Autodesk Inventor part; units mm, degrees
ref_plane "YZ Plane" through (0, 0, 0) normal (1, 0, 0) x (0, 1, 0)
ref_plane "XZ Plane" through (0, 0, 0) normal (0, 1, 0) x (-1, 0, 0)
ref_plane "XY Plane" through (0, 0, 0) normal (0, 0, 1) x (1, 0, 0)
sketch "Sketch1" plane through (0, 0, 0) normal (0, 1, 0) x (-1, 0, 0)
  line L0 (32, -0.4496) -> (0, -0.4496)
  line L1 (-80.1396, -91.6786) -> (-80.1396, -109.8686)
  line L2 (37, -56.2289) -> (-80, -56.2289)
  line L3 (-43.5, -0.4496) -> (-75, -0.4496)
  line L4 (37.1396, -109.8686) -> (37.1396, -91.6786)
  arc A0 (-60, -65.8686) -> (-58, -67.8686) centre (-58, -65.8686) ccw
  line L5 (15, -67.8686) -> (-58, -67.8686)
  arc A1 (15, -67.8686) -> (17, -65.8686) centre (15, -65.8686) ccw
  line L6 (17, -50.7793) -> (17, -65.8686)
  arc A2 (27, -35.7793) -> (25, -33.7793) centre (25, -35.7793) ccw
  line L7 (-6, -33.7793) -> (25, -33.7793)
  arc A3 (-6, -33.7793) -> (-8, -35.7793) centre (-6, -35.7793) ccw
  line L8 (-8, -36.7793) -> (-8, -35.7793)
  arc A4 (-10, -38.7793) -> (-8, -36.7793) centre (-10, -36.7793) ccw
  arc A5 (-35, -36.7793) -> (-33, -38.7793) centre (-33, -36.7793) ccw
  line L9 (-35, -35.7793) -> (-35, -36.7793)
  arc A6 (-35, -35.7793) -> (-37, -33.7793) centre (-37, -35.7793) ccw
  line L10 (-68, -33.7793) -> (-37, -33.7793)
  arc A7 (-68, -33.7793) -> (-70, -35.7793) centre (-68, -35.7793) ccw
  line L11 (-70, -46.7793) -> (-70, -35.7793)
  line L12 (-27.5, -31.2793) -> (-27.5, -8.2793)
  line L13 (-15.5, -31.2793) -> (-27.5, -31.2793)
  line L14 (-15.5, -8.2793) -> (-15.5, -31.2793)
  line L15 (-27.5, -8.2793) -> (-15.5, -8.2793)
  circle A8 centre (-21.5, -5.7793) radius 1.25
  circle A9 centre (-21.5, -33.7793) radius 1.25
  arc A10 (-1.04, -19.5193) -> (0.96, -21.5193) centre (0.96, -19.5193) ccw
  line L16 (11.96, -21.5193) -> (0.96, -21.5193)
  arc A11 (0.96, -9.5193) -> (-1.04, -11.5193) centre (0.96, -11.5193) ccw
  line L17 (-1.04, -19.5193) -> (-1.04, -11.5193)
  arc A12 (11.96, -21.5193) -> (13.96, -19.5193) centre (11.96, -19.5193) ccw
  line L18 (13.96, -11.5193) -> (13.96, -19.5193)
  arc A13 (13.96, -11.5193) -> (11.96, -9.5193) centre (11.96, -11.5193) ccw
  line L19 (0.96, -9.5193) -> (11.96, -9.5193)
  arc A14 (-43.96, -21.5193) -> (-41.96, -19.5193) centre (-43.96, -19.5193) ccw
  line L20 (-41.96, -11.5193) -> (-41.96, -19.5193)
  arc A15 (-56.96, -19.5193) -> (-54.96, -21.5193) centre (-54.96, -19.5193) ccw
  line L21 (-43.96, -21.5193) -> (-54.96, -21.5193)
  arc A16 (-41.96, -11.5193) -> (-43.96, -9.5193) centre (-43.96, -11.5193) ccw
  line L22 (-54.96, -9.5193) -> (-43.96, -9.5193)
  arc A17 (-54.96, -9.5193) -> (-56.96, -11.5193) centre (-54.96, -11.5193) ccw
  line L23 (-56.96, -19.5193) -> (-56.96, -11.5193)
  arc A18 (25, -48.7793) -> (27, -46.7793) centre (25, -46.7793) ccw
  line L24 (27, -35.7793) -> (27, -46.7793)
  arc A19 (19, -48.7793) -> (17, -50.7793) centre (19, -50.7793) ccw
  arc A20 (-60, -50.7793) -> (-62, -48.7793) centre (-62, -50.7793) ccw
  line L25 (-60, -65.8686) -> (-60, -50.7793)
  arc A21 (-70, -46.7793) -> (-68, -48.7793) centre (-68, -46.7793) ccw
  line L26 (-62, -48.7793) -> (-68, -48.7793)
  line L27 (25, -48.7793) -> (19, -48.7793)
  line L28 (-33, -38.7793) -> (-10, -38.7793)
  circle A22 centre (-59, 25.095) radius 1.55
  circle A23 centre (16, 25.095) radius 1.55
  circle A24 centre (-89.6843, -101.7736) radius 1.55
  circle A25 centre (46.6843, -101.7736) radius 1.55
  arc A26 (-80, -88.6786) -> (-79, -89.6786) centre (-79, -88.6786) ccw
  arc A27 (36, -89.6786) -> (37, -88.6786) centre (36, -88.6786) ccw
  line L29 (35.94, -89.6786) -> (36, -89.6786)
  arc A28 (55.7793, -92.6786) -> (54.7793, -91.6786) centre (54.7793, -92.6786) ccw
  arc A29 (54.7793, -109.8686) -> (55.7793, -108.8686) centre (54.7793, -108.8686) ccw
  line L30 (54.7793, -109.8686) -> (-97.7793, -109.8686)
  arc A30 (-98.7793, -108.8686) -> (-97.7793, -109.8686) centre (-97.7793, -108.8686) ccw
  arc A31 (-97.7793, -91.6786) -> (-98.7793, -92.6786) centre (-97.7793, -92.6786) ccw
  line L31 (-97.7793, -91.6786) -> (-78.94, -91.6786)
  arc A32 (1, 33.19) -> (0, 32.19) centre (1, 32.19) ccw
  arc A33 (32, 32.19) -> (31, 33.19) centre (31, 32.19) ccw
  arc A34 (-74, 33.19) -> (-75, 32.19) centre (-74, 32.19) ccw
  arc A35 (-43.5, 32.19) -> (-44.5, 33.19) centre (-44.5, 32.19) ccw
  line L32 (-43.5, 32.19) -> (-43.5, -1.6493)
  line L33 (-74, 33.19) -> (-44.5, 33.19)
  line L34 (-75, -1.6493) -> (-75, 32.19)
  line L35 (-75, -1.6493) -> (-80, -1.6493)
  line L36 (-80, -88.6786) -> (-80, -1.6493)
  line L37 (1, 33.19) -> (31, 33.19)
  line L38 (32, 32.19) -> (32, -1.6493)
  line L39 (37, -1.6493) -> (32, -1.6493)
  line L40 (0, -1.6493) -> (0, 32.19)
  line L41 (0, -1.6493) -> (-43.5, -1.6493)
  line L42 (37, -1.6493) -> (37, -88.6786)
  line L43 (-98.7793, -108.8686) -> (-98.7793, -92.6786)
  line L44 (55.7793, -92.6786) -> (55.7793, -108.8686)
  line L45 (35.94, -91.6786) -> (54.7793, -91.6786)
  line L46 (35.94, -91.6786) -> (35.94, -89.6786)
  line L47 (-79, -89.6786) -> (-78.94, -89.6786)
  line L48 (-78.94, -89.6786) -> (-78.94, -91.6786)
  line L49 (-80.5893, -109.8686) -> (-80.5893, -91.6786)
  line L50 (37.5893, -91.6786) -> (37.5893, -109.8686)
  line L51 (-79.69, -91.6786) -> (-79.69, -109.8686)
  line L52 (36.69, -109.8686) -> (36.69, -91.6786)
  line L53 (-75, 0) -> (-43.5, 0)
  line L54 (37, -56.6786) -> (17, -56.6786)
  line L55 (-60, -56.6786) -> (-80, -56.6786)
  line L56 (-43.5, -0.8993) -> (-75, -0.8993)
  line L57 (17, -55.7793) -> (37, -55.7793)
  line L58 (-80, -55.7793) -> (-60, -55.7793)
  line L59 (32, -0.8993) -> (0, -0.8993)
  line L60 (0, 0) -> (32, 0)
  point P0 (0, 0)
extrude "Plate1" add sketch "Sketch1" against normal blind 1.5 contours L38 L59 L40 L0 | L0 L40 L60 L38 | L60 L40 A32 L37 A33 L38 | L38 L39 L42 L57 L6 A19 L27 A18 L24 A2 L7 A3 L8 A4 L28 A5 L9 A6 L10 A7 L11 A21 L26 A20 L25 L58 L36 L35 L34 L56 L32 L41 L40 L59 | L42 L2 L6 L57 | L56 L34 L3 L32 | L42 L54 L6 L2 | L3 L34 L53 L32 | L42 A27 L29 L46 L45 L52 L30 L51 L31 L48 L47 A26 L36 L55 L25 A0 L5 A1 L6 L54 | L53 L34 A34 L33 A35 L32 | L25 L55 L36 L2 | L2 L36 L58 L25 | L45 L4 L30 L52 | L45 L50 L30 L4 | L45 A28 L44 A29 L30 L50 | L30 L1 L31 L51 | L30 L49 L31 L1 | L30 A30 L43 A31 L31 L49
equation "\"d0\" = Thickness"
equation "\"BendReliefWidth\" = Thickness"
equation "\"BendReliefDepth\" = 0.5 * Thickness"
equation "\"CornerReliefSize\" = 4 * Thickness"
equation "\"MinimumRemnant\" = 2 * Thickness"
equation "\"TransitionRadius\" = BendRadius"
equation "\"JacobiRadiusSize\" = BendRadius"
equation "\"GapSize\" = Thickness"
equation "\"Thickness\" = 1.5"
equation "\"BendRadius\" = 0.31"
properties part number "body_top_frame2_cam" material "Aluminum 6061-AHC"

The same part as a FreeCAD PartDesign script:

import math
import FreeCAD as App
import Part
import Sketcher
from FreeCAD import Vector

doc = App.newDocument("Part")
body = doc.addObject("PartDesign::Body", "Body")

# Sketch on XZ plane
sketch1 = body.newObject("Sketcher::SketchObject", "Sketch")
sketch1.AttachmentSupport = (doc.getObject("XZ_Plane"), [""])
sketch1.MapMode = "FlatFace"
sketch1.addGeometry([
    Part.ArcOfCircle(Part.Circle(Vector(-31, 32.19, 0), Vector(0, 0, 1), 1), math.radians(90), math.radians(180)),  # 0
    Part.LineSegment(Vector(-31, 33.19, 0), Vector(-1, 33.19, 0)),  # 1
    Part.ArcOfCircle(Part.Circle(Vector(-1, 32.19, 0), Vector(0, 0, 1), 1), math.radians(0), math.radians(90)),  # 2
    Part.LineSegment(Vector(0, 32.19, 0), Vector(0, -1.65, 0)),  # 3
    Part.LineSegment(Vector(0, -1.65, 0), Vector(43.5, -1.65, 0)),  # 4
    Part.LineSegment(Vector(43.5, -1.65, 0), Vector(43.5, 32.19, 0)),  # 5
    Part.ArcOfCircle(Part.Circle(Vector(44.5, 32.19, 0), Vector(0, 0, 1), 1), math.radians(90), math.radians(180)),  # 6
    Part.LineSegment(Vector(44.5, 33.19, 0), Vector(74, 33.19, 0)),  # 7
    Part.ArcOfCircle(Part.Circle(Vector(74, 32.19, 0), Vector(0, 0, 1), 1), math.radians(0), math.radians(90)),  # 8
    Part.LineSegment(Vector(75, 32.19, 0), Vector(75, -1.65, 0)),  # 9
    Part.LineSegment(Vector(75, -1.65, 0), Vector(80, -1.65, 0)),  # 10
    Part.LineSegment(Vector(80, -1.65, 0), Vector(80, -88.68, 0)),  # 11
    Part.ArcOfCircle(Part.Circle(Vector(79, -88.68, 0), Vector(0, 0, 1), 1), math.radians(-90), math.radians(0)),  # 12
    Part.LineSegment(Vector(79, -89.68, 0), Vector(78.94, -89.68, 0)),  # 13
    Part.LineSegment(Vector(78.94, -89.68, 0), Vector(78.94, -91.68, 0)),  # 14
    Part.LineSegment(Vector(78.94, -91.68, 0), Vector(97.78, -91.68, 0)),  # 15
    Part.ArcOfCircle(Part.Circle(Vector(97.78, -92.68, 0), Vector(0, 0, 1), 1), math.radians(0), math.radians(90)),  # 16
    Part.LineSegment(Vector(98.78, -92.68, 0), Vector(98.78, -108.87, 0)),  # 17
    Part.ArcOfCircle(Part.Circle(Vector(97.78, -108.87, 0), Vector(0, 0, 1), 1), math.radians(-90), math.radians(0)),  # 18
    Part.LineSegment(Vector(97.78, -109.87, 0), Vector(-54.78, -109.87, 0)),  # 19
    Part.ArcOfCircle(Part.Circle(Vector(-54.78, -108.87, 0), Vector(0, 0, 1), 1), math.radians(180), math.radians(270)),  # 20
    Part.LineSegment(Vector(-55.78, -108.87, 0), Vector(-55.78, -92.68, 0)),  # 21
    Part.ArcOfCircle(Part.Circle(Vector(-54.78, -92.68, 0), Vector(0, 0, 1), 1), math.radians(90), math.radians(180)),  # 22
    Part.LineSegment(Vector(-54.78, -91.68, 0), Vector(-35.94, -91.68, 0)),  # 23
    Part.LineSegment(Vector(-35.94, -91.68, 0), Vector(-35.94, -89.68, 0)),  # 24
    Part.LineSegment(Vector(-35.94, -89.68, 0), Vector(-36, -89.68, 0)),  # 25
    Part.ArcOfCircle(Part.Circle(Vector(-36, -88.68, 0), Vector(0, 0, 1), 1), math.radians(180), math.radians(270)),  # 26
    Part.LineSegment(Vector(-37, -88.68, 0), Vector(-37, -1.65, 0)),  # 27
    Part.LineSegment(Vector(-37, -1.65, 0), Vector(-32, -1.65, 0)),  # 28
    Part.LineSegment(Vector(-32, -1.65, 0), Vector(-32, 32.19, 0)),  # 29
    Part.LineSegment(Vector(-17, -50.78, 0), Vector(-17, -65.87, 0)),  # 30
    Part.ArcOfCircle(Part.Circle(Vector(-15, -65.87, 0), Vector(0, 0, 1), 2), math.radians(180), math.radians(270)),  # 31
    Part.LineSegment(Vector(-15, -67.87, 0), Vector(58, -67.87, 0)),  # 32
    Part.ArcOfCircle(Part.Circle(Vector(58, -65.87, 0), Vector(0, 0, 1), 2), math.radians(-90), math.radians(0)),  # 33
    Part.LineSegment(Vector(60, -65.87, 0), Vector(60, -50.78, 0)),  # 34
    Part.ArcOfCircle(Part.Circle(Vector(62, -50.78, 0), Vector(0, 0, 1), 2), math.radians(90), math.radians(180)),  # 35
    Part.LineSegment(Vector(62, -48.78, 0), Vector(68, -48.78, 0)),  # 36
    Part.ArcOfCircle(Part.Circle(Vector(68, -46.78, 0), Vector(0, 0, 1), 2), math.radians(-90), math.radians(0)),  # 37
    Part.LineSegment(Vector(70, -46.78, 0), Vector(70, -35.78, 0)),  # 38
    Part.ArcOfCircle(Part.Circle(Vector(68, -35.78, 0), Vector(0, 0, 1), 2), math.radians(0), math.radians(90)),  # 39
    Part.LineSegment(Vector(68, -33.78, 0), Vector(37, -33.78, 0)),  # 40
    Part.ArcOfCircle(Part.Circle(Vector(37, -35.78, 0), Vector(0, 0, 1), 2), math.radians(90), math.radians(180)),  # 41
    Part.LineSegment(Vector(35, -35.78, 0), Vector(35, -36.78, 0)),  # 42
    Part.ArcOfCircle(Part.Circle(Vector(33, -36.78, 0), Vector(0, 0, 1), 2), math.radians(-90), math.radians(0)),  # 43
    Part.LineSegment(Vector(33, -38.78, 0), Vector(10, -38.78, 0)),  # 44
    Part.ArcOfCircle(Part.Circle(Vector(10, -36.78, 0), Vector(0, 0, 1), 2), math.radians(180), math.radians(270)),  # 45
    Part.LineSegment(Vector(8, -36.78, 0), Vector(8, -35.78, 0)),  # 46
    Part.ArcOfCircle(Part.Circle(Vector(6, -35.78, 0), Vector(0, 0, 1), 2), math.radians(0), math.radians(90)),  # 47
    Part.LineSegment(Vector(6, -33.78, 0), Vector(-25, -33.78, 0)),  # 48
    Part.ArcOfCircle(Part.Circle(Vector(-25, -35.78, 0), Vector(0, 0, 1), 2), math.radians(90), math.radians(180)),  # 49
    Part.LineSegment(Vector(-27, -35.78, 0), Vector(-27, -46.78, 0)),  # 50
    Part.ArcOfCircle(Part.Circle(Vector(-25, -46.78, 0), Vector(0, 0, 1), 2), math.radians(180), math.radians(270)),  # 51
    Part.LineSegment(Vector(-25, -48.78, 0), Vector(-19, -48.78, 0)),  # 52
    Part.ArcOfCircle(Part.Circle(Vector(-19, -50.78, 0), Vector(0, 0, 1), 2), math.radians(0), math.radians(90)),  # 53
    Part.LineSegment(Vector(1.04, -19.52, 0), Vector(1.04, -11.52, 0)),  # 54
    Part.ArcOfCircle(Part.Circle(Vector(-0.96, -11.52, 0), Vector(0, 0, 1), 2), math.radians(0), math.radians(90)),  # 55
    Part.LineSegment(Vector(-0.96, -9.52, 0), Vector(-11.96, -9.52, 0)),  # 56
    Part.ArcOfCircle(Part.Circle(Vector(-11.96, -11.52, 0), Vector(0, 0, 1), 2), math.radians(90), math.radians(180)),  # 57
    Part.LineSegment(Vector(-13.96, -11.52, 0), Vector(-13.96, -19.52, 0)),  # 58
    Part.ArcOfCircle(Part.Circle(Vector(-11.96, -19.52, 0), Vector(0, 0, 1), 2), math.radians(180), math.radians(270)),  # 59
    Part.LineSegment(Vector(-11.96, -21.52, 0), Vector(-0.96, -21.52, 0)),  # 60
    Part.ArcOfCircle(Part.Circle(Vector(-0.96, -19.52, 0), Vector(0, 0, 1), 2), math.radians(-90), math.radians(0)),  # 61
    Part.ArcOfCircle(Part.Circle(Vector(43.96, -19.52, 0), Vector(0, 0, 1), 2), math.radians(180), math.radians(270)),  # 62
    Part.LineSegment(Vector(43.96, -21.52, 0), Vector(54.96, -21.52, 0)),  # 63
    Part.ArcOfCircle(Part.Circle(Vector(54.96, -19.52, 0), Vector(0, 0, 1), 2), math.radians(-90), math.radians(0)),  # 64
    Part.LineSegment(Vector(56.96, -19.52, 0), Vector(56.96, -11.52, 0)),  # 65
    Part.ArcOfCircle(Part.Circle(Vector(54.96, -11.52, 0), Vector(0, 0, 1), 2), math.radians(0), math.radians(90)),  # 66
    Part.LineSegment(Vector(54.96, -9.52, 0), Vector(43.96, -9.52, 0)),  # 67
    Part.ArcOfCircle(Part.Circle(Vector(43.96, -11.52, 0), Vector(0, 0, 1), 2), math.radians(90), math.radians(180)),  # 68
    Part.LineSegment(Vector(41.96, -11.52, 0), Vector(41.96, -19.52, 0)),  # 69
    Part.Circle(Vector(21.5, -33.78, 0), Vector(0, 0, 1), 1.25),  # 70
    Part.LineSegment(Vector(15.5, -31.28, 0), Vector(27.5, -31.28, 0)),  # 71
    Part.LineSegment(Vector(27.5, -31.28, 0), Vector(27.5, -8.28, 0)),  # 72
    Part.LineSegment(Vector(27.5, -8.28, 0), Vector(15.5, -8.28, 0)),  # 73
    Part.LineSegment(Vector(15.5, -8.28, 0), Vector(15.5, -31.28, 0)),  # 74
    Part.Circle(Vector(21.5, -5.78, 0), Vector(0, 0, 1), 1.25),  # 75
    Part.Circle(Vector(-16, 25.09, 0), Vector(0, 0, 1), 1.55),  # 76
    Part.Circle(Vector(59, 25.09, 0), Vector(0, 0, 1), 1.55),  # 77
    Part.Circle(Vector(-46.68, -101.77, 0), Vector(0, 0, 1), 1.55),  # 78
    Part.Circle(Vector(89.68, -101.77, 0), Vector(0, 0, 1), 1.55),  # 79
], False)
sketch1.addConstraint([
    Sketcher.Constraint("Tangent", 0, 1, 1, 1),
    Sketcher.Constraint("Tangent", 1, 2, 2, 2),
    Sketcher.Constraint("Tangent", 2, 1, 3, 1),
    Sketcher.Constraint("Coincident", 3, 2, 4, 1),
    Sketcher.Constraint("Coincident", 4, 2, 5, 1),
    Sketcher.Constraint("Tangent", 5, 2, 6, 2),
    Sketcher.Constraint("Tangent", 6, 1, 7, 1),
    Sketcher.Constraint("Tangent", 7, 2, 8, 2),
    Sketcher.Constraint("Tangent", 8, 1, 9, 1),
    Sketcher.Constraint("Coincident", 9, 2, 10, 1),
    Sketcher.Constraint("Coincident", 10, 2, 11, 1),
    Sketcher.Constraint("Tangent", 11, 2, 12, 2),
    Sketcher.Constraint("Tangent", 12, 1, 13, 1),
    Sketcher.Constraint("Coincident", 13, 2, 14, 1),
    Sketcher.Constraint("Coincident", 14, 2, 15, 1),
    Sketcher.Constraint("Tangent", 15, 2, 16, 2),
    Sketcher.Constraint("Tangent", 16, 1, 17, 1),
    Sketcher.Constraint("Tangent", 17, 2, 18, 2),
    Sketcher.Constraint("Tangent", 18, 1, 19, 1),
    Sketcher.Constraint("Tangent", 19, 2, 20, 2),
    Sketcher.Constraint("Tangent", 20, 1, 21, 1),
    Sketcher.Constraint("Tangent", 21, 2, 22, 2),
    Sketcher.Constraint("Tangent", 22, 1, 23, 1),
    Sketcher.Constraint("Coincident", 23, 2, 24, 1),
    Sketcher.Constraint("Coincident", 24, 2, 25, 1),
    Sketcher.Constraint("Tangent", 25, 2, 26, 2),
    Sketcher.Constraint("Tangent", 26, 1, 27, 1),
    Sketcher.Constraint("Coincident", 27, 2, 28, 1),
    Sketcher.Constraint("Coincident", 28, 2, 29, 1),
    Sketcher.Constraint("Tangent", 29, 2, 0, 2),
    Sketcher.Constraint("Tangent", 30, 2, 31, 1),
    Sketcher.Constraint("Tangent", 31, 2, 32, 1),
    Sketcher.Constraint("Tangent", 32, 2, 33, 1),
    Sketcher.Constraint("Tangent", 33, 2, 34, 1),
    Sketcher.Constraint("Tangent", 34, 2, 35, 2),
    Sketcher.Constraint("Tangent", 35, 1, 36, 1),
    Sketcher.Constraint("Tangent", 36, 2, 37, 1),
    Sketcher.Constraint("Tangent", 37, 2, 38, 1),
    Sketcher.Constraint("Tangent", 38, 2, 39, 1),
    Sketcher.Constraint("Tangent", 39, 2, 40, 1),
    Sketcher.Constraint("Tangent", 40, 2, 41, 1),
    Sketcher.Constraint("Tangent", 41, 2, 42, 1),
    Sketcher.Constraint("Tangent", 42, 2, 43, 2),
    Sketcher.Constraint("Tangent", 43, 1, 44, 1),
    Sketcher.Constraint("Tangent", 44, 2, 45, 2),
    Sketcher.Constraint("Tangent", 45, 1, 46, 1),
    Sketcher.Constraint("Tangent", 46, 2, 47, 1),
    Sketcher.Constraint("Tangent", 47, 2, 48, 1),
    Sketcher.Constraint("Tangent", 48, 2, 49, 1),
    Sketcher.Constraint("Tangent", 49, 2, 50, 1),
    Sketcher.Constraint("Tangent", 50, 2, 51, 1),
    Sketcher.Constraint("Tangent", 51, 2, 52, 1),
    Sketcher.Constraint("Tangent", 52, 2, 53, 2),
    Sketcher.Constraint("Tangent", 53, 1, 30, 1),
    Sketcher.Constraint("Tangent", 54, 2, 55, 1),
    Sketcher.Constraint("Tangent", 55, 2, 56, 1),
    Sketcher.Constraint("Tangent", 56, 2, 57, 1),
    Sketcher.Constraint("Tangent", 57, 2, 58, 1),
    Sketcher.Constraint("Tangent", 58, 2, 59, 1),
    Sketcher.Constraint("Tangent", 59, 2, 60, 1),
    Sketcher.Constraint("Tangent", 60, 2, 61, 1),
    Sketcher.Constraint("Tangent", 61, 2, 54, 1),
    Sketcher.Constraint("Tangent", 62, 2, 63, 1),
    Sketcher.Constraint("Tangent", 63, 2, 64, 1),
    Sketcher.Constraint("Tangent", 64, 2, 65, 1),
    Sketcher.Constraint("Tangent", 65, 2, 66, 1),
    Sketcher.Constraint("Tangent", 66, 2, 67, 1),
    Sketcher.Constraint("Tangent", 67, 2, 68, 1),
    Sketcher.Constraint("Tangent", 68, 2, 69, 1),
    Sketcher.Constraint("Tangent", 69, 2, 62, 1),
    Sketcher.Constraint("Coincident", 71, 2, 72, 1),
    Sketcher.Constraint("Coincident", 72, 2, 73, 1),
    Sketcher.Constraint("Coincident", 73, 2, 74, 1),
    Sketcher.Constraint("Coincident", 74, 2, 71, 1),
    Sketcher.Constraint("Horizontal", 1),
    Sketcher.Constraint("Vertical", 3),
    Sketcher.Constraint("Horizontal", 4),
    Sketcher.Constraint("Vertical", 5),
    Sketcher.Constraint("Horizontal", 7),
    Sketcher.Constraint("Vertical", 9),
    Sketcher.Constraint("Horizontal", 10),
    Sketcher.Constraint("Vertical", 11),
    Sketcher.Constraint("Horizontal", 13),
    Sketcher.Constraint("Vertical", 14),
    Sketcher.Constraint("Horizontal", 15),
    Sketcher.Constraint("Vertical", 17),
    Sketcher.Constraint("Horizontal", 19),
    Sketcher.Constraint("Vertical", 21),
    Sketcher.Constraint("Horizontal", 23),
    Sketcher.Constraint("Vertical", 24),
    Sketcher.Constraint("Horizontal", 25),
    Sketcher.Constraint("Vertical", 27),
    Sketcher.Constraint("Horizontal", 28),
    Sketcher.Constraint("Vertical", 29),
    Sketcher.Constraint("Vertical", 30),
    Sketcher.Constraint("Horizontal", 32),
    Sketcher.Constraint("Vertical", 34),
    Sketcher.Constraint("Horizontal", 36),
    Sketcher.Constraint("Vertical", 38),
    Sketcher.Constraint("Horizontal", 40),
    Sketcher.Constraint("Vertical", 42),
    Sketcher.Constraint("Horizontal", 44),
    Sketcher.Constraint("Vertical", 46),
    Sketcher.Constraint("Horizontal", 48),
    Sketcher.Constraint("Vertical", 50),
    Sketcher.Constraint("Horizontal", 52),
    Sketcher.Constraint("Vertical", 54),
    Sketcher.Constraint("Horizontal", 56),
    Sketcher.Constraint("Vertical", 58),
    Sketcher.Constraint("Horizontal", 60),
    Sketcher.Constraint("Horizontal", 63),
    Sketcher.Constraint("Vertical", 65),
    Sketcher.Constraint("Horizontal", 67),
    Sketcher.Constraint("Vertical", 69),
    Sketcher.Constraint("Horizontal", 71),
    Sketcher.Constraint("Vertical", 72),
    Sketcher.Constraint("Horizontal", 73),
    Sketcher.Constraint("Vertical", 74),
    Sketcher.Constraint("Equal", 0, 2),
    Sketcher.Constraint("Equal", 2, 6),
    Sketcher.Constraint("Equal", 6, 8),
    Sketcher.Constraint("Equal", 8, 12),
    Sketcher.Constraint("Equal", 12, 16),
    Sketcher.Constraint("Equal", 16, 18),
    Sketcher.Constraint("Equal", 18, 20),
    Sketcher.Constraint("Equal", 20, 22),
    Sketcher.Constraint("Equal", 22, 26),
    Sketcher.Constraint("Equal", 31, 33),
    Sketcher.Constraint("Equal", 33, 35),
    Sketcher.Constraint("Equal", 35, 37),
    Sketcher.Constraint("Equal", 37, 39),
    Sketcher.Constraint("Equal", 39, 41),
    Sketcher.Constraint("Equal", 41, 43),
    Sketcher.Constraint("Equal", 43, 45),
    Sketcher.Constraint("Equal", 45, 47),
    Sketcher.Constraint("Equal", 47, 49),
    Sketcher.Constraint("Equal", 49, 51),
    Sketcher.Constraint("Equal", 51, 53),
    Sketcher.Constraint("Equal", 53, 55),
    Sketcher.Constraint("Equal", 55, 57),
    Sketcher.Constraint("Equal", 57, 59),
    Sketcher.Constraint("Equal", 59, 61),
    Sketcher.Constraint("Equal", 61, 62),
    Sketcher.Constraint("Equal", 62, 64),
    Sketcher.Constraint("Equal", 64, 66),
    Sketcher.Constraint("Equal", 66, 68),
    Sketcher.Constraint("Equal", 70, 75),
    Sketcher.Constraint("Equal", 76, 77),
    Sketcher.Constraint("Equal", 77, 78),
    Sketcher.Constraint("Equal", 78, 79),
    Sketcher.Constraint("PointOnObject", 2, 1, -2),
    Sketcher.Constraint("Horizontal", 2, 3, 6, 3),
    Sketcher.Constraint("Horizontal", 16, 3, 22, 3),
    Sketcher.Constraint("Horizontal", 12, 3, 26, 3),
    Sketcher.Constraint("Horizontal", 41, 3, 47, 3),
    Sketcher.Constraint("Horizontal", 37, 3, 51, 3),
    Sketcher.Constraint("Horizontal", 61, 3, 62, 3),
    Sketcher.Constraint("Horizontal", 57, 3, 66, 3),
    Sketcher.Constraint("Horizontal", 76, 3, 77, 3),
    Sketcher.Constraint("Horizontal", 78, 3, 79, 3),
    Sketcher.Constraint("Horizontal", 4, 2, 9, 2),
    Sketcher.Constraint("Horizontal", 10, 2, 27, 2),
    Sketcher.Constraint("Horizontal", 70, 3, 39, 2),
    Sketcher.Constraint("Vertical", 70, 3, 75, 3),
    Sketcher.Constraint("Equal", 15, 23),
    Sketcher.Constraint("Equal", 13, 25),
    Sketcher.Constraint("Equal", 10, 28),
    Sketcher.Constraint("Equal", 40, 48),
    Sketcher.Constraint("Equal", 36, 52),
    Sketcher.Constraint("Equal", 60, 63),
    Sketcher.Constraint("Equal", 67, 38),
    Sketcher.Constraint("Equal", 44, 72),
    Sketcher.Constraint("Radius", 0, 1.0),
    Sketcher.Constraint("Radius", 31, 2.0),
    Sketcher.Constraint("Diameter", 70, 2.5),
    Sketcher.Constraint("Diameter", 76, 3.1),
    Sketcher.Constraint("DistanceX", 1, 1, 1, 2, 30.0),
    Sketcher.Constraint("DistanceX", 10, 1, 10, 2, 5.0),
    Sketcher.Constraint("DistanceX", 32, 1, 32, 2, 73.0),
    Sketcher.Constraint("DistanceX", 36, 1, 36, 2, 6.0),
    Sketcher.Constraint("DistanceX", 40, 2, 40, 1, 31.0),
    Sketcher.Constraint("DistanceX", 56, 2, 56, 1, 11.0),
    Sketcher.Constraint("DistanceX", 71, 1, 71, 2, 12.0),
    Sketcher.Constraint("DistanceY", 14, 2, 14, 1, 2.0),
    Sketcher.Constraint("DistanceY", 42, 2, 42, 1, 1.0),
    Sketcher.Constraint("DistanceY", 54, 1, 54, 2, 8.0),
    Sketcher.Constraint("DistanceX", 4, 1, 4, 2, 43.5),
    Sketcher.Constraint("DistanceX", 7, 1, 7, 2, 29.5),
    Sketcher.Constraint("DistanceX", 31, 3, -1, 1, 15.0),
    Sketcher.Constraint("DistanceX", 76, 3, -1, 1, 16.0),
    Sketcher.Constraint("DistanceX", -1, 1, 77, 3, 59.0),
    Sketcher.Constraint("DistanceX", 13, 2, 13, 1, 0.06),
    Sketcher.Constraint("DistanceY", 17, 2, 17, 1, 16.19),
    Sketcher.Constraint("DistanceX", -1, 1, 70, 3, 21.5),
    Sketcher.Constraint("DistanceX", -1, 1, 71, 2, 27.5),
    Sketcher.Constraint("DistanceY", -1, 1, 0, 3, 32.19),
    Sketcher.Constraint("DistanceX", 55, 3, -1, 1, 0.96),
    Sketcher.Constraint("DistanceX", -1, 1, 62, 3, 43.96),
    Sketcher.Constraint("DistanceX", 15, 1, 15, 2, 18.8393),
    Sketcher.Constraint("DistanceY", 3, 2, 3, 1, 33.8393),
    Sketcher.Constraint("DistanceY", 11, 2, 11, 1, 87.0293),
    Sketcher.Constraint("DistanceY", 30, 2, 30, 1, 15.0893),
    Sketcher.Constraint("DistanceY", -1, 1, 76, 3, 25.095),
    Sketcher.Constraint("DistanceY", 31, 3, -1, 1, 65.8686),
    Sketcher.Constraint("DistanceY", 55, 3, -1, 1, 11.5193),
    Sketcher.Constraint("DistanceY", 75, 3, -1, 1, 5.7793),
    Sketcher.Constraint("DistanceX", 78, 3, -1, 1, 46.6843),
    Sketcher.Constraint("DistanceY", 78, 3, -1, 1, 101.7736),
    Sketcher.Constraint("DistanceX", -1, 1, 79, 3, 89.6843),
    Sketcher.Constraint("DistanceY", 71, 2, -1, 1, 31.2793),
])
pad1 = body.newObject("PartDesign::Pad", "Pad")
pad1.Profile = sketch1
pad1.Length = 1.5

doc.recompute()
